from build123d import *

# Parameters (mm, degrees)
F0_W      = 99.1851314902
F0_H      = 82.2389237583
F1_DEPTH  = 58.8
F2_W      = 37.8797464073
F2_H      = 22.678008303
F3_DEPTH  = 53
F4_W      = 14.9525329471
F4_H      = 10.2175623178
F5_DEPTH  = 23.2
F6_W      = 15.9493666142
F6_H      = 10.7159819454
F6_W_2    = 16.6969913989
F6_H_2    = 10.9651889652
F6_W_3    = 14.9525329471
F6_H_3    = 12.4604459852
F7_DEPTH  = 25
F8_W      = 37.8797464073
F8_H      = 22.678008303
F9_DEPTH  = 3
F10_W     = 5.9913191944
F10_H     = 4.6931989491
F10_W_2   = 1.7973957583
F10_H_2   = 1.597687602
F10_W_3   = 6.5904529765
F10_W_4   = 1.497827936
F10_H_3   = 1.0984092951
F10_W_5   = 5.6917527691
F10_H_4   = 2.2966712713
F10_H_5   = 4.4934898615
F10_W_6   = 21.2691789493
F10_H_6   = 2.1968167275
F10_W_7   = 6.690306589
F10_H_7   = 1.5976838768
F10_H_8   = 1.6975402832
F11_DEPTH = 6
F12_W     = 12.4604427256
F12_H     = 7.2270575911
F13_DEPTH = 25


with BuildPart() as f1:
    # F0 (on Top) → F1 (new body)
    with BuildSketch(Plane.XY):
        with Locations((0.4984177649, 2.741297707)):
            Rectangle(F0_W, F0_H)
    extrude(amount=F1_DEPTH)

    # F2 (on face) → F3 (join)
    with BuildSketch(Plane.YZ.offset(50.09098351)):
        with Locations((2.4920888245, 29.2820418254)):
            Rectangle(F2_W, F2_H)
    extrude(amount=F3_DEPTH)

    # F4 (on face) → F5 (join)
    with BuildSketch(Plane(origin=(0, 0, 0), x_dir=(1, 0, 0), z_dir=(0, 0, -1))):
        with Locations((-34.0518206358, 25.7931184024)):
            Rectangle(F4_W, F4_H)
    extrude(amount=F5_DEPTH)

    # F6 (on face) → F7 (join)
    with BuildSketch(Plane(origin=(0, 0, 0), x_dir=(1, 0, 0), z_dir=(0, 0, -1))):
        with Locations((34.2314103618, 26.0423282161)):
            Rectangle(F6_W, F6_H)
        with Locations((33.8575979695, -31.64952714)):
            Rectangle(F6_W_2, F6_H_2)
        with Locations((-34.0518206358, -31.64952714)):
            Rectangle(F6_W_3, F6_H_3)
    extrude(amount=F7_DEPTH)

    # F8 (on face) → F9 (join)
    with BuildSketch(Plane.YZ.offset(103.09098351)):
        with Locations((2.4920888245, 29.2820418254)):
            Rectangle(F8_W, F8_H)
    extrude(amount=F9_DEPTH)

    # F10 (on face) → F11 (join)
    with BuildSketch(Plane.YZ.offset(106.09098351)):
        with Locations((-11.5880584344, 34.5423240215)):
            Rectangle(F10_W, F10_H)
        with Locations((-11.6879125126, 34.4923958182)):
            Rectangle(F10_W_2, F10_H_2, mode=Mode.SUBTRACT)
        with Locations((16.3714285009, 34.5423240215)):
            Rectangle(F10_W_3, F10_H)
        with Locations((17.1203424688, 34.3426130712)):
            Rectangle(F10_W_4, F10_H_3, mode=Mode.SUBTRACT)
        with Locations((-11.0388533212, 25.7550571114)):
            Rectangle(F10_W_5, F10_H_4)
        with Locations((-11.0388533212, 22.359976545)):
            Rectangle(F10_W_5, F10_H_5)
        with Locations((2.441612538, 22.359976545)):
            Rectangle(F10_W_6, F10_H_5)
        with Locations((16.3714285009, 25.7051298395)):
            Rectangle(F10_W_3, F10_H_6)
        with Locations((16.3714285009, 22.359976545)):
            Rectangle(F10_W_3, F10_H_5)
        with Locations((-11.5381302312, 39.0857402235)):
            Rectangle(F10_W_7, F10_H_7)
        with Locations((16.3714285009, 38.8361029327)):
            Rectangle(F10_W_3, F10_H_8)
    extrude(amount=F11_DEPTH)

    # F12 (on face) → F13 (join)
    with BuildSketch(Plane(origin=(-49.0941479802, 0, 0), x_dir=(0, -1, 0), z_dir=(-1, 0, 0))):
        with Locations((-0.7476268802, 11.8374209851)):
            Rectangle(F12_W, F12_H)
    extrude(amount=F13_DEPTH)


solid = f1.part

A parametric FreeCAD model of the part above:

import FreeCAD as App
import Part
import Sketcher
Q = App.Units.Quantity


def add_polygon(sketch, points):
    """Adds a closed chain of lines whose ends are joined by coincident constraints."""
    first, n = sketch.GeometryCount, len(points)
    for a, b in zip(points, points[1:] + points[:1]):
        sketch.addGeometry(Part.LineSegment(App.Vector(*a, 0), App.Vector(*b, 0)), False)
    for i in range(n):
        sketch.addConstraint(Sketcher.Constraint("Coincident", first + i, 2, first + (i + 1) % n, 1))

doc = App.newDocument("Part")
params = doc.addObject("Spreadsheet::Sheet", "Params")
for row, (alias, value) in enumerate([
    ("pad1_length", "58.8 mm"),
    ("pad2_length", "53 mm"),
    ("pad3_length", "23.2 mm"),
    ("pad4_length", "25 mm"),
    ("pad5_length", "3 mm"),
    ("pad6_length", "6 mm"),
    ("pad7_length", "25 mm"),
], start=1):
    params.set(f"A{row}", alias)
    params.set(f"B{row}", "=" + value)
    params.setAlias(f"B{row}", alias)

body = doc.addObject("PartDesign::Body", "Body")

sketch1 = body.newObject("Sketcher::SketchObject", "Sketch")
sketch1.AttachmentSupport = (doc.getObject("XY_Plane"), [""])
sketch1.MapMode = "FlatFace"
add_polygon(sketch1, [(-49, 44), (-49, -38), (50, -38), (50, 44)])
sketch1.addConstraint(Sketcher.Constraint("Vertical", 0))
sketch1.addConstraint(Sketcher.Constraint("Horizontal", 1))
sketch1.addConstraint(Sketcher.Constraint("Vertical", 2))
sketch1.addConstraint(Sketcher.Constraint("Horizontal", 3))
sketch1.addConstraint(Sketcher.Constraint("DistanceX", 1, 1, 1, 2, Q("99.185131 mm")))
sketch1.addConstraint(Sketcher.Constraint("DistanceY", 0, 2, 0, 1, Q("82.238924 mm")))
sketch1.addConstraint(Sketcher.Constraint("DistanceY", -1, 1, 2, 2, Q("43.86076 mm")))
sketch1.addConstraint(Sketcher.Constraint("DistanceX", 0, 2, -1, 1, Q("49.094148 mm")))
pad1 = body.newObject("PartDesign::Pad", "Pad")
pad1.Profile = sketch1
pad1.setExpression("Length", "Params.pad1_length")

sketch2 = body.newObject("Sketcher::SketchObject", "Sketch001")
sketch2.AttachmentSupport = (doc.getObject("YZ_Plane"), [""])
sketch2.MapMode = "FlatFace"
sketch2.AttachmentOffset = App.Placement(App.Vector(0, 0, 50.090984), App.Rotation())
add_polygon(sketch2, [(-16, 41), (-16, 18), (21, 18), (21, 41)])
sketch2.addConstraint(Sketcher.Constraint("Vertical", 0))
sketch2.addConstraint(Sketcher.Constraint("Horizontal", 1))
sketch2.addConstraint(Sketcher.Constraint("Vertical", 2))
sketch2.addConstraint(Sketcher.Constraint("Horizontal", 3))
sketch2.addConstraint(Sketcher.Constraint("DistanceY", 0, 2, 0, 1, Q("22.678008 mm")))
sketch2.addConstraint(Sketcher.Constraint("DistanceX", 1, 1, 1, 2, Q("37.879746 mm")))
sketch2.addConstraint(Sketcher.Constraint("DistanceX", 0, 2, -1, 1, Q("16.447784 mm")))
sketch2.addConstraint(Sketcher.Constraint("DistanceY", -1, 1, 0, 2, Q("17.943038 mm")))
pad2 = body.newObject("PartDesign::Pad", "Pad001")
pad2.Profile = sketch2
pad2.setExpression("Length", "Params.pad2_length")

sketch3 = body.newObject("Sketcher::SketchObject", "Sketch002")
sketch3.AttachmentSupport = (doc.getObject("XY_Plane"), [""])
sketch3.MapMode = "FlatFace"
add_polygon(sketch3, [(-42, -31), (-42, -21), (-27, -21), (-27, -31)])
sketch3.addConstraint(Sketcher.Constraint("Vertical", 0))
sketch3.addConstraint(Sketcher.Constraint("Horizontal", 1))
sketch3.addConstraint(Sketcher.Constraint("Vertical", 2))
sketch3.addConstraint(Sketcher.Constraint("Horizontal", 3))
sketch3.addConstraint(Sketcher.Constraint("DistanceY", 2, 2, -1, 1, Q("30.9019 mm")))
sketch3.addConstraint(Sketcher.Constraint("DistanceX", 1, 1, 1, 2, Q("14.952533 mm")))
sketch3.addConstraint(Sketcher.Constraint("DistanceY", 0, 1, 0, 2, Q("10.217562 mm")))
sketch3.addConstraint(Sketcher.Constraint("DistanceX", 0, 2, -1, 1, Q("41.528087 mm")))
pad3 = body.newObject("PartDesign::Pad", "Pad002")
pad3.Profile = sketch3
pad3.setExpression("Length", "Params.pad3_length")
pad3.Reversed = True

sketch4 = body.newObject("Sketcher::SketchObject", "Sketch003")
sketch4.AttachmentSupport = (doc.getObject("XY_Plane"), [""])
sketch4.MapMode = "FlatFace"
add_polygon(sketch4, [(26, -31), (26, -21), (42, -21), (42, -31)])
add_polygon(sketch4, [(26, 26), (26, 37), (42, 37), (42, 26)])
add_polygon(sketch4, [(-42, 25), (-42, 38), (-27, 38), (-27, 25)])
sketch4.addConstraint(Sketcher.Constraint("Vertical", 0))
sketch4.addConstraint(Sketcher.Constraint("Horizontal", 1))
sketch4.addConstraint(Sketcher.Constraint("Vertical", 2))
sketch4.addConstraint(Sketcher.Constraint("Horizontal", 3))
sketch4.addConstraint(Sketcher.Constraint("Vertical", 4))
sketch4.addConstraint(Sketcher.Constraint("Horizontal", 5))
sketch4.addConstraint(Sketcher.Constraint("Vertical", 6))
sketch4.addConstraint(Sketcher.Constraint("Horizontal", 7))
sketch4.addConstraint(Sketcher.Constraint("Vertical", 8))
sketch4.addConstraint(Sketcher.Constraint("Horizontal", 9))
sketch4.addConstraint(Sketcher.Constraint("Vertical", 10))
sketch4.addConstraint(Sketcher.Constraint("Horizontal", 11))
sketch4.addConstraint(Sketcher.Constraint("Vertical", 2, 2, 5, 2))
sketch4.addConstraint(Sketcher.Constraint("DistanceX", 5, 1, 5, 2, Q("16.696991 mm")))
sketch4.addConstraint(Sketcher.Constraint("DistanceY", 0, 1, 0, 2, Q("10.715982 mm")))
sketch4.addConstraint(Sketcher.Constraint("DistanceY", 4, 1, 4, 2, Q("10.965189 mm")))
sketch4.addConstraint(Sketcher.Constraint("DistanceX", 1, 1, 1, 2, Q("15.949367 mm")))
sketch4.addConstraint(Sketcher.Constraint("DistanceX", 9, 1, 9, 2, Q("14.952533 mm")))
sketch4.addConstraint(Sketcher.Constraint("DistanceY", 8, 1, 8, 2, Q("12.460446 mm")))
sketch4.addConstraint(Sketcher.Constraint("DistanceY", 2, 2, -1, 1, Q("31.400319 mm")))
sketch4.addConstraint(Sketcher.Constraint("DistanceY", -1, 1, 4, 2, Q("37.132122 mm")))
sketch4.addConstraint(Sketcher.Constraint("DistanceY", -1, 1, 8, 2, Q("37.87975 mm")))
sketch4.addConstraint(Sketcher.Constraint("DistanceX", 8, 2, 4, 2, Q("67.037189 mm")))
sketch4.addConstraint(Sketcher.Constraint("DistanceX", -1, 1, 0, 2, Q("26.256727 mm")))
pad4 = body.newObject("PartDesign::Pad", "Pad003")
pad4.Profile = sketch4
pad4.setExpression("Length", "Params.pad4_length")
pad4.Reversed = True

sketch5 = body.newObject("Sketcher::SketchObject", "Sketch004")
sketch5.AttachmentSupport = (doc.getObject("YZ_Plane"), [""])
sketch5.MapMode = "FlatFace"
sketch5.AttachmentOffset = App.Placement(App.Vector(0, 0, 103.090984), App.Rotation())
add_polygon(sketch5, [(-16, 41), (-16, 18), (21, 18), (21, 41)])
sketch5.addConstraint(Sketcher.Constraint("Vertical", 0))
sketch5.addConstraint(Sketcher.Constraint("Horizontal", 1))
sketch5.addConstraint(Sketcher.Constraint("Vertical", 2))
sketch5.addConstraint(Sketcher.Constraint("Horizontal", 3))
sketch5.addConstraint(Sketcher.Constraint("DistanceY", 0, 2, 0, 1, Q("22.678008 mm")))
sketch5.addConstraint(Sketcher.Constraint("DistanceX", 1, 1, 1, 2, Q("37.879746 mm")))
sketch5.addConstraint(Sketcher.Constraint("DistanceX", 0, 2, -1, 1, Q("16.447784 mm")))
sketch5.addConstraint(Sketcher.Constraint("DistanceY", -1, 1, 0, 2, Q("17.943038 mm")))
pad5 = body.newObject("PartDesign::Pad", "Pad004")
pad5.Profile = sketch5
pad5.setExpression("Length", "Params.pad5_length")

sketch6 = body.newObject("Sketcher::SketchObject", "Sketch005")
sketch6.AttachmentSupport = (doc.getObject("YZ_Plane"), [""])
sketch6.MapMode = "FlatFace"
sketch6.AttachmentOffset = App.Placement(App.Vector(0, 0, 106.090984), App.Rotation())
add_polygon(sketch6, [(-14.6, 36.9), (-14.6, 32.2), (-8.6, 32.2), (-8.6, 36.9)])
add_polygon(sketch6, [(-10.8, 33.7), (-12.6, 33.7), (-12.6, 35.3), (-10.8, 35.3)])
add_polygon(sketch6, [(13.1, 36.9), (13.1, 32.2), (19.7, 32.2), (19.7, 36.9)])
add_polygon(sketch6, [(17.9, 33.8), (16.4, 33.8), (16.4, 34.9), (17.9, 34.9)])
add_polygon(sketch6, [(-13.9, 26.9), (-13.9, 20.1), (19.7, 20.1), (19.7, 26.8), (13.1, 26.8), (13.1, 24.6), (-8.2, 24.6), (-8.2, 26.9)])
add_polygon(sketch6, [(-14.9, 39.9), (-14.9, 38.3), (-8.2, 38.3), (-8.2, 39.9)])
add_polygon(sketch6, [(13.1, 39.7), (13.1, 38), (19.7, 38), (19.7, 39.7)])
sketch6.addConstraint(Sketcher.Constraint("Vertical", 0))
sketch6.addConstraint(Sketcher.Constraint("Horizontal", 1))
sketch6.addConstraint(Sketcher.Constraint("Vertical", 2))
sketch6.addConstraint(Sketcher.Constraint("Horizontal", 3))
sketch6.addConstraint(Sketcher.Constraint("Horizontal", 4))
sketch6.addConstraint(Sketcher.Constraint("Vertical", 5))
sketch6.addConstraint(Sketcher.Constraint("Horizontal", 6))
sketch6.addConstraint(Sketcher.Constraint("Vertical", 7))
sketch6.addConstraint(Sketcher.Constraint("Vertical", 8))
sketch6.addConstraint(Sketcher.Constraint("Horizontal", 9))
sketch6.addConstraint(Sketcher.Constraint("Vertical", 10))
sketch6.addConstraint(Sketcher.Constraint("Horizontal", 11))
sketch6.addConstraint(Sketcher.Constraint("Horizontal", 12))
sketch6.addConstraint(Sketcher.Constraint("Vertical", 13))
sketch6.addConstraint(Sketcher.Constraint("Horizontal", 14))
sketch6.addConstraint(Sketcher.Constraint("Vertical", 15))
sketch6.addConstraint(Sketcher.Constraint("Vertical", 16))
sketch6.addConstraint(Sketcher.Constraint("Horizontal", 17))
sketch6.addConstraint(Sketcher.Constraint("Vertical", 18))
sketch6.addConstraint(Sketcher.Constraint("Horizontal", 19))
sketch6.addConstraint(Sketcher.Constraint("Vertical", 20))
sketch6.addConstraint(Sketcher.Constraint("Horizontal", 21))
sketch6.addConstraint(Sketcher.Constraint("Vertical", 22))
sketch6.addConstraint(Sketcher.Constraint("Horizontal", 23))
sketch6.addConstraint(Sketcher.Constraint("Vertical", 24))
sketch6.addConstraint(Sketcher.Constraint("Horizontal", 25))
sketch6.addConstraint(Sketcher.Constraint("Vertical", 26))
sketch6.addConstraint(Sketcher.Constraint("Horizontal", 27))
sketch6.addConstraint(Sketcher.Constraint("Vertical", 28))
sketch6.addConstraint(Sketcher.Constraint("Horizontal", 29))
sketch6.addConstraint(Sketcher.Constraint("Vertical", 30))
sketch6.addConstraint(Sketcher.Constraint("Horizontal", 31))
sketch6.addConstraint(Sketcher.Constraint("Horizontal", 1, 2, 8, 2))
sketch6.addConstraint(Sketcher.Constraint("Horizontal", 3, 2, 10, 2))
sketch6.addConstraint(Sketcher.Constraint("Vertical", 10, 2, 17, 2))
sketch6.addConstraint(Sketcher.Constraint("Vertical", 11, 2, 19, 2))
sketch6.addConstraint(Sketcher.Constraint("Vertical", 22, 2, 25, 2))
sketch6.addConstraint(Sketcher.Constraint("Vertical", 20, 2, 28, 2))
sketch6.addConstraint(Sketcher.Constraint("Vertical", 18, 2, 29, 2))
sketch6.addConstraint(Sketcher.Constraint("Equal", 27, 18))
sketch6.addConstraint(Sketcher.Constraint("DistanceY", 0, 2, 0, 1, Q("4.693199 mm")))
sketch6.addConstraint(Sketcher.Constraint("DistanceX", 1, 1, 1, 2, Q("5.991319 mm")))
sketch6.addConstraint(Sketcher.Constraint("DistanceX", 21, 2, 21, 1, Q("21.269179 mm")))
sketch6.addConstraint(Sketcher.Constraint("DistanceY", 13, 1, 13, 2, Q("1.098409 mm")))
sketch6.addConstraint(Sketcher.Constraint("DistanceY", 16, 2, 16, 1, Q("6.790161 mm")))
sketch6.addConstraint(Sketcher.Constraint("DistanceY", 22, 1, 22, 2, Q("2.296671 mm")))
sketch6.addConstraint(Sketcher.Constraint("DistanceY", 28, 2, 28, 1, Q("1.69754 mm")))
sketch6.addConstraint(Sketcher.Constraint("DistanceX", 1, 2, -1, 1, Q("8.592399 mm")))
sketch6.addConstraint(Sketcher.Constraint("DistanceY", -1, 1, 24, 2, Q("38.286898 mm")))
sketch6.addConstraint(Sketcher.Constraint("DistanceX", 1, 2, 8, 2, Q("21.668601 mm")))
sketch6.addConstraint(Sketcher.Constraint("DistanceX", 14, 2, 10, 2, Q("1.797399 mm")))
sketch6.addConstraint(Sketcher.Constraint("DistanceX", 4, 2, 4, 1, Q("1.797396 mm")))
sketch6.addConstraint(Sketcher.Constraint("DistanceX", 9, 1, 9, 2, Q("6.590453 mm")))
sketch6.addConstraint(Sketcher.Constraint("DistanceX", 12, 2, 12, 1, Q("1.497828 mm")))
sketch6.addConstraint(Sketcher.Constraint("DistanceX", 17, 1, 17, 2, Q("33.551385 mm")))
sketch6.addConstraint(Sketcher.Constraint("DistanceX", 25, 1, 25, 2, Q("6.690307 mm")))
sketch6.addConstraint(Sketcher.Constraint("DistanceY", 5, 1, 5, 2, Q("1.597688 mm")))
sketch6.addConstraint(Sketcher.Constraint("DistanceY", 24, 2, 24, 1, Q("1.597684 mm")))
sketch6.addConstraint(Sketcher.Constraint("DistanceX", 4, 2, -1, 1, Q("12.58661 mm")))
sketch6.addConstraint(Sketcher.Constraint("DistanceY", -1, 1, 5, 2, Q("35.29124 mm")))
sketch6.addConstraint(Sketcher.Constraint("DistanceY", -1, 1, 12, 2, Q("33.793408 mm")))
sketch6.addConstraint(Sketcher.Constraint("DistanceY", -1, 1, 16, 2, Q("20.113232 mm")))
sketch6.addConstraint(Sketcher.Constraint("DistanceY", 4, 2, 3, 2, Q("3.195371 mm")))
sketch6.addConstraint(Sketcher.Constraint("DistanceY", 11, 2, 28, 2, Q("1.098409 mm")))
pad6 = body.newObject("PartDesign::Pad", "Pad005")
pad6.Profile = sketch6
pad6.setExpression("Length", "Params.pad6_length")

sketch7 = body.newObject("Sketcher::SketchObject", "Sketch006")
sketch7.AttachmentSupport = (doc.getObject("YZ_Plane"), [""])
sketch7.MapMode = "FlatFace"
sketch7.AttachmentOffset = App.Placement(App.Vector(0, 0, -49.094148), App.Rotation())
add_polygon(sketch7, [(7, 15), (7, 8), (-5, 8), (-5, 15)])
sketch7.addConstraint(Sketcher.Constraint("Vertical", 0))
sketch7.addConstraint(Sketcher.Constraint("Horizontal", 1))
sketch7.addConstraint(Sketcher.Constraint("Vertical", 2))
sketch7.addConstraint(Sketcher.Constraint("Horizontal", 3))
sketch7.addConstraint(Sketcher.Constraint("DistanceX", 1, 2, 1, 1, Q("12.460443 mm")))
sketch7.addConstraint(Sketcher.Constraint("DistanceY", 0, 2, 0, 1, Q("7.227058 mm")))
sketch7.addConstraint(Sketcher.Constraint("DistanceX", -1, 1, 0, 2, Q("6.977848 mm")))
sketch7.addConstraint(Sketcher.Constraint("DistanceY", -1, 1, 2, 2, Q("15.45095 mm")))
pad7 = body.newObject("PartDesign::Pad", "Pad006")
pad7.Profile = sketch7
pad7.setExpression("Length", "Params.pad7_length")
pad7.Reversed = True

doc.recompute()
